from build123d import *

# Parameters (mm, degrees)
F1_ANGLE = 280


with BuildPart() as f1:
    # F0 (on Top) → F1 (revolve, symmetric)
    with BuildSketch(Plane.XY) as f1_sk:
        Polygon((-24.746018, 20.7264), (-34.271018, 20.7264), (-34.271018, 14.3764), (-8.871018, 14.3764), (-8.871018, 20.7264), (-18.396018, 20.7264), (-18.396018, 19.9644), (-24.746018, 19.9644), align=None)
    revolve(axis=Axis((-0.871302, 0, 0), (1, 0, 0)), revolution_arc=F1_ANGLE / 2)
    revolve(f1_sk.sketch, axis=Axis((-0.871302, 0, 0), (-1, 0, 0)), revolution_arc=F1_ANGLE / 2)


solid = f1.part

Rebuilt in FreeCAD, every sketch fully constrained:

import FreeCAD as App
import Part
import Sketcher

V = App.Vector
Q = App.Units.Quantity

doc = App.newDocument("Part")
body = doc.addObject("PartDesign::Body", "Body")

sketch1 = doc.addObject("Sketcher::SketchObject", "Sketch")
body.addObject(sketch1)
sketch1.AttachmentSupport = (doc.XY_Plane, [""])
sketch1.MapMode = "FlatFace"
sketch1.addGeometry([
    Part.LineSegment(V(-24.7, 20.7, 0), V(-34.3, 20.7, 0)),
    Part.LineSegment(V(-34.3, 20.7, 0), V(-34.3, 14.4, 0)),
    Part.LineSegment(V(-34.3, 14.4, 0), V(-8.9, 14.4, 0)),
    Part.LineSegment(V(-8.9, 14.4, 0), V(-8.9, 20.7, 0)),
    Part.LineSegment(V(-8.9, 20.7, 0), V(-18.4, 20.7, 0)),
    Part.LineSegment(V(-18.4, 20.7, 0), V(-18.4, 20, 0)),
    Part.LineSegment(V(-18.4, 20, 0), V(-24.7, 20, 0)),
    Part.LineSegment(V(-24.7, 20, 0), V(-24.7, 20.7, 0)),
], False)
sketch1.addConstraint([
    Sketcher.Constraint("Coincident", 0, 2, 1, 1),
    Sketcher.Constraint("Coincident", 1, 2, 2, 1),
    Sketcher.Constraint("Coincident", 2, 2, 3, 1),
    Sketcher.Constraint("Coincident", 3, 2, 4, 1),
    Sketcher.Constraint("Coincident", 4, 2, 5, 1),
    Sketcher.Constraint("Coincident", 5, 2, 6, 1),
    Sketcher.Constraint("Coincident", 6, 2, 7, 1),
    Sketcher.Constraint("Coincident", 7, 2, 0, 1),
    Sketcher.Constraint("Horizontal", 0),
    Sketcher.Constraint("Vertical", 1),
    Sketcher.Constraint("Horizontal", 2),
    Sketcher.Constraint("Vertical", 3),
    Sketcher.Constraint("Horizontal", 4),
    Sketcher.Constraint("Vertical", 5),
    Sketcher.Constraint("Horizontal", 6),
    Sketcher.Constraint("Vertical", 7),
    Sketcher.Constraint("Horizontal", 0, 2, 3, 2),
    Sketcher.Constraint("Equal", 0, 4),
    Sketcher.Constraint("Equal", 6, 1),
    Sketcher.Constraint("DistanceX", 2, 1, 2, 2, Q("1 in")),
    Sketcher.Constraint("DistanceX", 6, 2, 6, 1, Q("0.25 in")),
    Sketcher.Constraint("DistanceY", 5, 2, 5, 1, Q("0.03 in")),
    Sketcher.Constraint("DistanceY", -1, 1, 0, 2, Q("0.816 in")),
    Sketcher.Constraint("DistanceX", 4, 2, -1, 1, 18.396018),
])
revolution = doc.addObject("PartDesign::Revolution", "Revolution")
body.addObject(revolution)
revolution.Profile = sketch1
revolution.ReferenceAxis = (sketch1, ["H_Axis"])
revolution.Angle = 140

sketch2 = doc.addObject("Sketcher::SketchObject", "Sketch001")
body.addObject(sketch2)
sketch2.AttachmentSupport = (doc.XY_Plane, [""])
sketch2.MapMode = "FlatFace"
sketch2.addGeometry([
    Part.LineSegment(V(-24.7, 20.7, 0), V(-34.3, 20.7, 0)),
    Part.LineSegment(V(-34.3, 20.7, 0), V(-34.3, 14.4, 0)),
    Part.LineSegment(V(-34.3, 14.4, 0), V(-8.9, 14.4, 0)),
    Part.LineSegment(V(-8.9, 14.4, 0), V(-8.9, 20.7, 0)),
    Part.LineSegment(V(-8.9, 20.7, 0), V(-18.4, 20.7, 0)),
    Part.LineSegment(V(-18.4, 20.7, 0), V(-18.4, 20, 0)),
    Part.LineSegment(V(-18.4, 20, 0), V(-24.7, 20, 0)),
    Part.LineSegment(V(-24.7, 20, 0), V(-24.7, 20.7, 0)),
], False)
sketch2.addConstraint([
    Sketcher.Constraint("Coincident", 0, 2, 1, 1),
    Sketcher.Constraint("Coincident", 1, 2, 2, 1),
    Sketcher.Constraint("Coincident", 2, 2, 3, 1),
    Sketcher.Constraint("Coincident", 3, 2, 4, 1),
    Sketcher.Constraint("Coincident", 4, 2, 5, 1),
    Sketcher.Constraint("Coincident", 5, 2, 6, 1),
    Sketcher.Constraint("Coincident", 6, 2, 7, 1),
    Sketcher.Constraint("Coincident", 7, 2, 0, 1),
    Sketcher.Constraint("Horizontal", 0),
    Sketcher.Constraint("Vertical", 1),
    Sketcher.Constraint("Horizontal", 2),
    Sketcher.Constraint("Vertical", 3),
    Sketcher.Constraint("Horizontal", 4),
    Sketcher.Constraint("Vertical", 5),
    Sketcher.Constraint("Horizontal", 6),
    Sketcher.Constraint("Vertical", 7),
    Sketcher.Constraint("Horizontal", 0, 2, 3, 2),
    Sketcher.Constraint("Equal", 0, 4),
    Sketcher.Constraint("Equal", 6, 1),
    Sketcher.Constraint("DistanceX", 2, 1, 2, 2, Q("1 in")),
    Sketcher.Constraint("DistanceX", 6, 2, 6, 1, Q("0.25 in")),
    Sketcher.Constraint("DistanceY", 5, 2, 5, 1, Q("0.03 in")),
    Sketcher.Constraint("DistanceY", -1, 1, 0, 2, Q("0.816 in")),
    Sketcher.Constraint("DistanceX", 4, 2, -1, 1, 18.396018),
])
revolution2 = doc.addObject("PartDesign::Revolution", "Revolution001")
body.addObject(revolution2)
revolution2.Profile = sketch2
revolution2.ReferenceAxis = (sketch2, ["H_Axis"])
revolution2.Angle = 140
revolution2.Reversed = True

doc.recompute()
